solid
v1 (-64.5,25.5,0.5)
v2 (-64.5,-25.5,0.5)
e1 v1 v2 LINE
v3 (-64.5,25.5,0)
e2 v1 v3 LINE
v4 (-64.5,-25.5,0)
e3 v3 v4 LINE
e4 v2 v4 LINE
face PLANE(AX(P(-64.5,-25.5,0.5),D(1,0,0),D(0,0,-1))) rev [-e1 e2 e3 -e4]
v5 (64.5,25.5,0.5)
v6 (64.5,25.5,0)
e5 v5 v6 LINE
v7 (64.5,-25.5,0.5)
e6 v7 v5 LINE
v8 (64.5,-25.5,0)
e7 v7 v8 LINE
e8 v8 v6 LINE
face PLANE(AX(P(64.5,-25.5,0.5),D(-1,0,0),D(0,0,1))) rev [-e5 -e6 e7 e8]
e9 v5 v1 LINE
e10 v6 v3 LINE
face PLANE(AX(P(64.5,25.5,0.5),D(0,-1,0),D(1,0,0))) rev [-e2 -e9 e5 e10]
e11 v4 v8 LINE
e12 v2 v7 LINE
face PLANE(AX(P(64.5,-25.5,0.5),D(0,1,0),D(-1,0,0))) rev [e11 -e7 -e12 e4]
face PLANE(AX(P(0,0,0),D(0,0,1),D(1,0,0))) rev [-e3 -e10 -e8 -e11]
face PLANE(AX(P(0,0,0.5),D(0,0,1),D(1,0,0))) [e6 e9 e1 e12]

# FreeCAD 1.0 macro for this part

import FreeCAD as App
import Part
import Sketcher


def add_polygon(sketch, points):
    """Adds a closed chain of lines whose ends are joined by coincident constraints."""
    first, n = sketch.GeometryCount, len(points)
    for a, b in zip(points, points[1:] + points[:1]):
        sketch.addGeometry(Part.LineSegment(App.Vector(*a, 0), App.Vector(*b, 0)), False)
    for i in range(n):
        sketch.addConstraint(Sketcher.Constraint("Coincident", first + i, 2, first + (i + 1) % n, 1))

doc = App.newDocument("Part")
body = doc.addObject("PartDesign::Body", "Body")

sketch1 = body.newObject("Sketcher::SketchObject", "Sketch")
sketch1.AttachmentSupport = (doc.getObject("XY_Plane"), [""])
sketch1.MapMode = "FlatFace"
add_polygon(sketch1, [(-64.5, 25.5), (-64.5, -25.5), (64.5, -25.5), (64.5, 25.5)])
sketch1.addConstraint(Sketcher.Constraint("Vertical", 0))
sketch1.addConstraint(Sketcher.Constraint("Horizontal", 1))
sketch1.addConstraint(Sketcher.Constraint("Vertical", 2))
sketch1.addConstraint(Sketcher.Constraint("Horizontal", 3))
sketch1.addConstraint(Sketcher.Constraint("Symmetric", 0, 2, 2, 2, -1, 1))
sketch1.addConstraint(Sketcher.Constraint("DistanceX", 1, 1, 1, 2, 129.0))
sketch1.addConstraint(Sketcher.Constraint("DistanceY", 0, 2, 0, 1, 51.0))
pad1 = body.newObject("PartDesign::Pad", "Pad")
pad1.Profile = sketch1
pad1.Length = 0.5

doc.recompute()
